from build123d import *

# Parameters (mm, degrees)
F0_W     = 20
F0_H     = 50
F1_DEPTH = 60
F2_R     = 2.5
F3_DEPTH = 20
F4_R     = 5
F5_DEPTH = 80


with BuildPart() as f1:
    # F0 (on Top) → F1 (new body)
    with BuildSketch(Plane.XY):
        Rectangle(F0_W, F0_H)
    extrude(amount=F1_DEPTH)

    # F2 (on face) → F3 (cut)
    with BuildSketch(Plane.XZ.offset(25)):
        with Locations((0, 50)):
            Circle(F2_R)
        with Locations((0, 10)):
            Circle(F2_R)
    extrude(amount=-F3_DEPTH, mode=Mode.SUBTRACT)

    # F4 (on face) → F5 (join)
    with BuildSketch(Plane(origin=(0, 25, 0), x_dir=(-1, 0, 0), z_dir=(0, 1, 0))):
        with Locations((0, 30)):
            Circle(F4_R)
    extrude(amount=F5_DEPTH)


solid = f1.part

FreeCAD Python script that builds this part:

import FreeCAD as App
import Part
import Sketcher
from FreeCAD import Vector


def add_polygon(sketch, points):
    """Adds a closed chain of lines whose ends are joined by coincident constraints."""
    first, n = sketch.GeometryCount, len(points)
    for a, b in zip(points, points[1:] + points[:1]):
        sketch.addGeometry(Part.LineSegment(App.Vector(*a, 0), App.Vector(*b, 0)), False)
    for i in range(n):
        sketch.addConstraint(Sketcher.Constraint("Coincident", first + i, 2, first + (i + 1) % n, 1))

doc = App.newDocument("Part")
body = doc.addObject("PartDesign::Body", "Body")

sketch1 = doc.addObject("Sketcher::SketchObject", "Sketch")
body.addObject(sketch1)
sketch1.AttachmentSupport = (doc.XY_Plane, [""])
sketch1.MapMode = "FlatFace"
add_polygon(sketch1, [(-10, 25), (-10, -25), (10, -25), (10, 25)])
sketch1.addConstraint(Sketcher.Constraint("Vertical", 0))
sketch1.addConstraint(Sketcher.Constraint("Horizontal", 1))
sketch1.addConstraint(Sketcher.Constraint("Vertical", 2))
sketch1.addConstraint(Sketcher.Constraint("Horizontal", 3))
sketch1.addConstraint(Sketcher.Constraint("Symmetric", 0, 2, 2, 2, -1, 1))
sketch1.addConstraint(Sketcher.Constraint("DistanceX", 1, 1, 1, 2, 20.0))
sketch1.addConstraint(Sketcher.Constraint("DistanceY", 0, 2, 0, 1, 50.0))
pad1 = doc.addObject("PartDesign::Pad", "Pad")
body.addObject(pad1)
pad1.Profile = sketch1
pad1.Length = 60

sketch2 = doc.addObject("Sketcher::SketchObject", "Sketch001")
body.addObject(sketch2)
sketch2.AttachmentSupport = (doc.XZ_Plane, [""])
sketch2.MapMode = "FlatFace"
sketch2.AttachmentOffset = App.Placement(Vector(0, 0, 25), App.Rotation())
sketch2.addGeometry(Part.Circle(Vector(0, 50, 0), Vector(0, 0, 1), 2.5), False)
sketch2.addGeometry(Part.Circle(Vector(0, 10, 0), Vector(0, 0, 1), 2.5), False)
sketch2.addConstraint(Sketcher.Constraint("Equal", 0, 1))
sketch2.addConstraint(Sketcher.Constraint("PointOnObject", 0, 3, -2))
sketch2.addConstraint(Sketcher.Constraint("PointOnObject", 1, 3, -2))
sketch2.addConstraint(Sketcher.Constraint("Diameter", 0, 5.0))
sketch2.addConstraint(Sketcher.Constraint("DistanceY", -1, 1, 0, 3, 50.0))
sketch2.addConstraint(Sketcher.Constraint("DistanceY", -1, 1, 1, 3, 10.0))
pocket1 = doc.addObject("PartDesign::Pocket", "Pocket")
body.addObject(pocket1)
pocket1.Profile = sketch2
pocket1.Length = 20

sketch3 = doc.addObject("Sketcher::SketchObject", "Sketch002")
body.addObject(sketch3)
sketch3.AttachmentSupport = (doc.XZ_Plane, [""])
sketch3.MapMode = "FlatFace"
sketch3.AttachmentOffset = App.Placement(Vector(0, 0, -25), App.Rotation())
sketch3.addGeometry(Part.Circle(Vector(0, 30, 0), Vector(0, 0, 1), 5), False)
sketch3.addConstraint(Sketcher.Constraint("PointOnObject", 0, 3, -2))
sketch3.addConstraint(Sketcher.Constraint("Diameter", 0, 10.0))
sketch3.addConstraint(Sketcher.Constraint("DistanceY", -1, 1, 0, 3, 30.0))
pad2 = doc.addObject("PartDesign::Pad", "Pad001")
body.addObject(pad2)
pad2.Profile = sketch3
pad2.Length = 80
pad2.Reversed = True

doc.recompute()
